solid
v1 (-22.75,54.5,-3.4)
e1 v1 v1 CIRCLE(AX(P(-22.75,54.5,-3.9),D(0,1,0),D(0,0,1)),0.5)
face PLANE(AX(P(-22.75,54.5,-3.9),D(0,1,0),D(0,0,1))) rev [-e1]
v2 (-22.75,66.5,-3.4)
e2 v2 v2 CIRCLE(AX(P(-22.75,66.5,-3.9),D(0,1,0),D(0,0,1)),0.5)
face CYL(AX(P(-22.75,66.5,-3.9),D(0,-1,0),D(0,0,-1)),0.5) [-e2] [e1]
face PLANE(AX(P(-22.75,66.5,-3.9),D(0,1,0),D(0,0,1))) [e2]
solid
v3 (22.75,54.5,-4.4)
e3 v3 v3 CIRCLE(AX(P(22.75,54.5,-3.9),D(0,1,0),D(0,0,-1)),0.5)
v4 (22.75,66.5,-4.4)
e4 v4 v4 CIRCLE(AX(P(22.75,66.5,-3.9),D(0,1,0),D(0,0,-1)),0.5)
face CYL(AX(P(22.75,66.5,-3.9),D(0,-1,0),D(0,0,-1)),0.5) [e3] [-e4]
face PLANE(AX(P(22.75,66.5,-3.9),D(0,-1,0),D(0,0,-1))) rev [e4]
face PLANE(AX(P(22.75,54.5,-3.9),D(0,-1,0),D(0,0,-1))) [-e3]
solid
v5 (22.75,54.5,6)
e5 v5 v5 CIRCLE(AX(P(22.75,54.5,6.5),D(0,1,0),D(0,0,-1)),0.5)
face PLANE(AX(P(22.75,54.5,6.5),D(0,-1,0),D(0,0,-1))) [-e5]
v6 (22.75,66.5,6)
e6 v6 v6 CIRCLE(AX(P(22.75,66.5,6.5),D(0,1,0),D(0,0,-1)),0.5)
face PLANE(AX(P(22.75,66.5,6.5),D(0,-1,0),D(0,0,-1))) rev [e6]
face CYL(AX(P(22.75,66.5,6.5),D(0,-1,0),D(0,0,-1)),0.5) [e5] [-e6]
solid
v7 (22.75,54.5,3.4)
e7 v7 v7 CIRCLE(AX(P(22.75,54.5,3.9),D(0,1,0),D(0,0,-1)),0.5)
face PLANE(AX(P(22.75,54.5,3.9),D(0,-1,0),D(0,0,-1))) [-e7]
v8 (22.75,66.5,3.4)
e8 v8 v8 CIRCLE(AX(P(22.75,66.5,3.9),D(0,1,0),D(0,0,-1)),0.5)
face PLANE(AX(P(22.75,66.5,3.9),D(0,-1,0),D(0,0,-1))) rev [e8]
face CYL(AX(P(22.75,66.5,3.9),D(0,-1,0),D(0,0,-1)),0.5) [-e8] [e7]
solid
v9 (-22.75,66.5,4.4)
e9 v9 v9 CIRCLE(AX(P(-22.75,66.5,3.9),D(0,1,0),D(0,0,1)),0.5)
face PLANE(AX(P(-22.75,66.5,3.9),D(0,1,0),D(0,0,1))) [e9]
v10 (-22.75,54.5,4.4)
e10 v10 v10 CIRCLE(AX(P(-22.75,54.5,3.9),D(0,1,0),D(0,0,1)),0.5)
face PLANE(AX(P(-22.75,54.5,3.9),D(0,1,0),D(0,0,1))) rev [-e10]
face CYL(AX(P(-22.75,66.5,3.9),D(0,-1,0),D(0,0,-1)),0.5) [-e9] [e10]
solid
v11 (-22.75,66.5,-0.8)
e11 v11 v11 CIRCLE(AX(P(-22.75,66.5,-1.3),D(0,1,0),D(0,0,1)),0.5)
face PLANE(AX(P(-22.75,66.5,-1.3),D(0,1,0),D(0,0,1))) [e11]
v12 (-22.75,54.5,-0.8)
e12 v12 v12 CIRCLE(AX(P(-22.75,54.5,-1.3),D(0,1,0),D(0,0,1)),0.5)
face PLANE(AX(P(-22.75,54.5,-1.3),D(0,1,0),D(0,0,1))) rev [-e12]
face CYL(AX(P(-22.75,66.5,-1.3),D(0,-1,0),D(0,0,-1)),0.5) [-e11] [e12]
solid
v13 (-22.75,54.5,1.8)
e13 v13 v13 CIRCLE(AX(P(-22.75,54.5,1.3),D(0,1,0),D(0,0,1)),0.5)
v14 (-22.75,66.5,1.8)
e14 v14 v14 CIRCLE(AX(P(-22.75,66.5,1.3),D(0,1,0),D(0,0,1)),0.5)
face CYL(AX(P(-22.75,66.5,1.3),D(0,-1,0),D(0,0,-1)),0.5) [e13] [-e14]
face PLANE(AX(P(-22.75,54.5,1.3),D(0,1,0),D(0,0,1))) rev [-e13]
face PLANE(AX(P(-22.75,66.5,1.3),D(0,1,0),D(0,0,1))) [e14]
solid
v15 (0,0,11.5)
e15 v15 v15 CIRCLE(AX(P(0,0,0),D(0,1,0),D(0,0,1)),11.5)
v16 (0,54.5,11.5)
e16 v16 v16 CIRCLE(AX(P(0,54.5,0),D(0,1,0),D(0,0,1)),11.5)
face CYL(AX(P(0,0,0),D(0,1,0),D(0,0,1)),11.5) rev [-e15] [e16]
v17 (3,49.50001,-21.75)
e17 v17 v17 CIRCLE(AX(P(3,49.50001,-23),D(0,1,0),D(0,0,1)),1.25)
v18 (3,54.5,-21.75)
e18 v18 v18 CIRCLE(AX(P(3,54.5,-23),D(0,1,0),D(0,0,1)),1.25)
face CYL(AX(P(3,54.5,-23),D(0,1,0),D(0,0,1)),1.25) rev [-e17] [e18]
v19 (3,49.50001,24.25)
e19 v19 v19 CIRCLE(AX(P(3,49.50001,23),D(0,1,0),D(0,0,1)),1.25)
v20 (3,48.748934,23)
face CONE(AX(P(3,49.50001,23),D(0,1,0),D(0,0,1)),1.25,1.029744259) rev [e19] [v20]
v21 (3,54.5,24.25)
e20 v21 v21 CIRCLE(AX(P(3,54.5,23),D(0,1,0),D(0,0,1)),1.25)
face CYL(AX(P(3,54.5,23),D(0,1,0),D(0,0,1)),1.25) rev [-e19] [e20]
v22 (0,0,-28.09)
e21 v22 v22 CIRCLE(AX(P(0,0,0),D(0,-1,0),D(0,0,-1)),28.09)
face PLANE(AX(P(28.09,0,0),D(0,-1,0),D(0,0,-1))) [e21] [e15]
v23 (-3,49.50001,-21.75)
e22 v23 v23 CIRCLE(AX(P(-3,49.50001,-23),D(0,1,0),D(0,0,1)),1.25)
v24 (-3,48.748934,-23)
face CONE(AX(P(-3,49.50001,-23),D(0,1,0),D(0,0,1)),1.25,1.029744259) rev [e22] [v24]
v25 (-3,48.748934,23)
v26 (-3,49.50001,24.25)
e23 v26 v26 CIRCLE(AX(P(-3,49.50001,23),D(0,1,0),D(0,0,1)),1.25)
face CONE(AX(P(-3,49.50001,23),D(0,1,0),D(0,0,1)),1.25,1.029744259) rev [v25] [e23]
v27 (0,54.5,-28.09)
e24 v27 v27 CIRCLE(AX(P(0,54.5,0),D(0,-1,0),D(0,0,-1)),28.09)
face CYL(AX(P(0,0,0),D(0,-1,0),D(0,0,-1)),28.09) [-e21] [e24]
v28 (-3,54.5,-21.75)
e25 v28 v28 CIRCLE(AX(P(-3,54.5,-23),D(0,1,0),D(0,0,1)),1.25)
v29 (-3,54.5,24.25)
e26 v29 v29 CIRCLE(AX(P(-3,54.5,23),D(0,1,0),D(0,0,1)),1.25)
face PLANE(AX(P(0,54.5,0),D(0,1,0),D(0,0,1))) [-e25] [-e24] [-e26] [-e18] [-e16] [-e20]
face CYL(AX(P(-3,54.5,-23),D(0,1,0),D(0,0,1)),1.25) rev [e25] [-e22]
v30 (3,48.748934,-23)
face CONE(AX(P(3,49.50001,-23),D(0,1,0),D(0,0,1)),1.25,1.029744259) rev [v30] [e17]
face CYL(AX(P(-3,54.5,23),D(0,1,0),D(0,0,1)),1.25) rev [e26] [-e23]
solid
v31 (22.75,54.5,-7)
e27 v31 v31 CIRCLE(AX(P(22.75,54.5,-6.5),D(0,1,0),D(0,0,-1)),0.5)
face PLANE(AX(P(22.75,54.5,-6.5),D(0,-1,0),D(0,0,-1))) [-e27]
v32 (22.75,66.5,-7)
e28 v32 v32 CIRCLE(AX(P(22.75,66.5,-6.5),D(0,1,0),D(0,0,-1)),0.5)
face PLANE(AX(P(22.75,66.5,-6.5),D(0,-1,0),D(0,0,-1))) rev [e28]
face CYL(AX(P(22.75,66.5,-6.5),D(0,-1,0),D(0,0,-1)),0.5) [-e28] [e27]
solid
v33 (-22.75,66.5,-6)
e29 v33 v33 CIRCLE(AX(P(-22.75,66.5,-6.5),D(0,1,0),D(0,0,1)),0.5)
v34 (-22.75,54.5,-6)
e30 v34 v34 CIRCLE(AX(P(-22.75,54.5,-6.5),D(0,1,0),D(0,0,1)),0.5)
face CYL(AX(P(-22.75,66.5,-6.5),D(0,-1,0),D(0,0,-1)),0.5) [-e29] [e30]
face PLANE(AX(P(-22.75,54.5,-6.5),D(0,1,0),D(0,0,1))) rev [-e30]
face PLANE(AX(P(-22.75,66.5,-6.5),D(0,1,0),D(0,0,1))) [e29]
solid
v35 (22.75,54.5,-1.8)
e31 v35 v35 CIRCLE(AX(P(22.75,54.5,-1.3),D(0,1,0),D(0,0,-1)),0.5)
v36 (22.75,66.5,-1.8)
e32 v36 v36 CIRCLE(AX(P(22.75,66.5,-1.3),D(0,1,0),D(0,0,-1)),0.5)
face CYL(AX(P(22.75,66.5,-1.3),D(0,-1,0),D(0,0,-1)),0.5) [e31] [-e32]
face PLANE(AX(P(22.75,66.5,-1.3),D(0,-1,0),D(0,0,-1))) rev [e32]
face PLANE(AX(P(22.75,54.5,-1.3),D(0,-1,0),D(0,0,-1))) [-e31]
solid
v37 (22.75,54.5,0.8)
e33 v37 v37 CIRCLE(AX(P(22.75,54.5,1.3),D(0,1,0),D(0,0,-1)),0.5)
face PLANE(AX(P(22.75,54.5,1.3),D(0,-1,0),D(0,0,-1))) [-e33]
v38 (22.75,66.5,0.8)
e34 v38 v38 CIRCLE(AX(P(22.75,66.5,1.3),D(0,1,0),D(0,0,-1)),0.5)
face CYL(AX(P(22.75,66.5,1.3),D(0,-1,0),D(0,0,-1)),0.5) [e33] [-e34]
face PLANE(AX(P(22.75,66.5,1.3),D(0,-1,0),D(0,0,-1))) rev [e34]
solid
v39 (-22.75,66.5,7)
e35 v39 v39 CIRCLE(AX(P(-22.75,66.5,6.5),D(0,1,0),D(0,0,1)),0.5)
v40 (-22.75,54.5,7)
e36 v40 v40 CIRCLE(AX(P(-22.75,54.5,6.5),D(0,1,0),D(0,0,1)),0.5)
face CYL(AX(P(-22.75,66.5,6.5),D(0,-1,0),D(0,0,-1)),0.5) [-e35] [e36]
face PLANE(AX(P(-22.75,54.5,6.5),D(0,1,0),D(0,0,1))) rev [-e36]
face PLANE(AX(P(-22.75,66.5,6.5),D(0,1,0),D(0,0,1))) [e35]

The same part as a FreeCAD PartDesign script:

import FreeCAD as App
import Part
import Sketcher

V = App.Vector


def add_polygon(sketch, points):
    """Adds a closed chain of lines whose ends are joined by coincident constraints."""
    first, n = sketch.GeometryCount, len(points)
    for a, b in zip(points, points[1:] + points[:1]):
        sketch.addGeometry(Part.LineSegment(App.Vector(*a, 0), App.Vector(*b, 0)), False)
    for i in range(n):
        sketch.addConstraint(Sketcher.Constraint("Coincident", first + i, 2, first + (i + 1) % n, 1))

doc = App.newDocument("Part")
params = doc.addObject("Spreadsheet::Sheet", "Params")
for row, (alias, value) in enumerate([
    ("sketch1_height", "54.5 mm"),
    ("sketch1_width", "28.09 mm"),
    ("revolution_angle", "360 deg"),
    ("sketch2_width", "54.5 mm"),
    ("groove_angle", "360 deg"),
    ("sketch3_diameter", "2.5 mm"),
    ("hole_diameter", "2.5 mm"),
    ("hole_depth", "4.99999 mm"),
    ("sketch4_diameter", "23 mm"),
    ("sketch5_diameter", "1 mm"),
    ("pad1_length", "12 mm"),
    ("sketch6_diameter", "1 mm"),
    ("pad2_length", "12 mm"),
    ("sketch7_diameter", "1 mm"),
    ("pad3_length", "12 mm"),
    ("sketch8_diameter", "1 mm"),
    ("pad4_length", "12 mm"),
    ("sketch9_diameter", "1 mm"),
    ("pad5_length", "12 mm"),
    ("sketch10_diameter", "1 mm"),
    ("pad6_length", "12 mm"),
    ("sketch11_diameter", "1 mm"),
    ("pad7_length", "12 mm"),
    ("sketch12_diameter", "1 mm"),
    ("pad8_length", "12 mm"),
    ("sketch13_diameter", "1 mm"),
    ("pad9_length", "12 mm"),
    ("sketch14_diameter", "1 mm"),
    ("pad10_length", "12 mm"),
    ("sketch15_diameter", "1 mm"),
    ("pad11_length", "12 mm"),
    ("sketch16_diameter", "1 mm"),
    ("pad12_length", "12 mm"),
], start=1):
    params.set(f"A{row}", alias)
    params.set(f"B{row}", "=" + value)
    params.setAlias(f"B{row}", alias)

body = doc.addObject("PartDesign::Body", "Body")

# Sketch on XY plane
sketch1 = body.newObject("Sketcher::SketchObject", "Sketch")
sketch1.AttachmentSupport = (doc.getObject("XY_Plane"), [""])
sketch1.MapMode = "FlatFace"
add_polygon(sketch1, [(0, 54), (0, 0), (28, 0), (28, 54)])  # lines 0-3
sketch1.addConstraint(Sketcher.Constraint("Vertical", 0))
sketch1.addConstraint(Sketcher.Constraint("Horizontal", 1))
sketch1.addConstraint(Sketcher.Constraint("Vertical", 2))
sketch1.addConstraint(Sketcher.Constraint("Horizontal", 3))
sketch1.addConstraint(Sketcher.Constraint("Coincident", 0, 2, -1, 1))
sketch1.addConstraint(Sketcher.Constraint("DistanceY", 0, 2, 0, 1, 54.5))
sketch1.addConstraint(Sketcher.Constraint("DistanceX", 1, 1, 1, 2, 28.09))
sketch1.setExpression("Constraints[9]", "Params.sketch1_height")
sketch1.setExpression("Constraints[10]", "Params.sketch1_width")
revolution = body.newObject("PartDesign::Revolution", "Revolution")
revolution.Profile = sketch1
revolution.ReferenceAxis = (sketch1, ["V_Axis"])
revolution.setExpression("Angle", "Params.revolution_angle")

# Sketch on YZ plane
sketch2 = body.newObject("Sketcher::SketchObject", "Sketch001")
sketch2.AttachmentSupport = (doc.getObject("YZ_Plane"), [""])
sketch2.MapMode = "FlatFace"
add_polygon(sketch2, [(0, 0), (54.5, 0), (54.5, 6.9), (44.5, 6.6), (44.5, 5.6), (0, 5.6)])  # lines 0-5
sketch2.addConstraint(Sketcher.Constraint("Horizontal", 0))
sketch2.addConstraint(Sketcher.Constraint("Vertical", 1))
sketch2.addConstraint(Sketcher.Constraint("Vertical", 3))
sketch2.addConstraint(Sketcher.Constraint("Horizontal", 4))
sketch2.addConstraint(Sketcher.Constraint("Vertical", 5))
sketch2.addConstraint(Sketcher.Constraint("Coincident", 5, 2, -1, 1))
sketch2.addConstraint(Sketcher.Constraint("DistanceX", 0, 1, 0, 2, 54.5))
sketch2.addConstraint(Sketcher.Constraint("DistanceY", 1, 1, 1, 2, 6.858))
sketch2.addConstraint(Sketcher.Constraint("DistanceX", 4, 2, 4, 1, 44.4797))
sketch2.addConstraint(Sketcher.Constraint("DistanceY", 5, 2, 5, 1, 5.5626))
sketch2.addConstraint(Sketcher.Constraint("DistanceY", 3, 2, 3, 1, 0.995379))
sketch2.setExpression("Constraints[12]", "Params.sketch2_width")
groove = body.newObject("PartDesign::Groove", "Groove")
groove.Profile = sketch2
groove.ReferenceAxis = (sketch2, ["H_Axis"])
groove.setExpression("Angle", "Params.groove_angle")

# Sketch on XZ plane
sketch3 = body.newObject("Sketcher::SketchObject", "Sketch002")
sketch3.AttachmentSupport = (doc.getObject("XZ_Plane"), [""])
sketch3.MapMode = "FlatFace"
sketch3.AttachmentOffset = App.Placement(V(0, 0, -54.5), App.Rotation())
sketch3.addGeometry(Part.Circle(V(-3, -23, 0), V(0, 0, 1), 1.2), False)
sketch3.addGeometry(Part.Circle(V(3, 23, 0), V(0, 0, 1), 1.2), False)
sketch3.addGeometry(Part.Circle(V(-3, 23, 0), V(0, 0, 1), 1.2), False)
sketch3.addGeometry(Part.Circle(V(3, -23, 0), V(0, 0, 1), 1.2), False)
sketch3.addConstraint(Sketcher.Constraint("Equal", 0, 1))
sketch3.addConstraint(Sketcher.Constraint("Equal", 1, 2))
sketch3.addConstraint(Sketcher.Constraint("Equal", 2, 3))
sketch3.addConstraint(Sketcher.Constraint("Symmetric", 0, 3, 1, 3, -1, 1))
sketch3.addConstraint(Sketcher.Constraint("Symmetric", 2, 3, 3, 3, -1, 1))
sketch3.addConstraint(Sketcher.Constraint("Symmetric", 1, 3, 2, 3, -2))
sketch3.addConstraint(Sketcher.Constraint("Diameter", 0, 2.5))
sketch3.addConstraint(Sketcher.Constraint("DistanceX", 0, 3, -1, 1, 3.0))
sketch3.addConstraint(Sketcher.Constraint("DistanceY", 0, 3, -1, 1, 23.0))
sketch3.setExpression("Constraints[6]", "Params.sketch3_diameter")
doc.recompute()
hole = body.newObject("PartDesign::Hole", "Hole")
hole.Profile = sketch3
hole.ThreadType = "None"
hole.setExpression("Diameter", "Params.hole_diameter")
hole.DepthType = "Dimension"
hole.setExpression("Depth", "Params.hole_depth")
hole.DrillPoint = "Angled"
hole.DrillPointAngle = 118
hole.Reversed = True

# Sketch on XZ plane
sketch4 = body.newObject("Sketcher::SketchObject", "Sketch003")
sketch4.AttachmentSupport = (doc.getObject("XZ_Plane"), [""])
sketch4.MapMode = "FlatFace"
sketch4.AttachmentOffset = App.Placement(V(0, 0, -54.5), App.Rotation())
sketch4.addGeometry(Part.Circle(V(0, 0, 0), V(0, 0, 1), 12), False)
sketch4.addConstraint(Sketcher.Constraint("Coincident", 0, 3, -1, 1))
sketch4.addConstraint(Sketcher.Constraint("Diameter", 0, 23.0))
sketch4.setExpression("Constraints[1]", "Params.sketch4_diameter")
pocket1 = body.newObject("PartDesign::Pocket", "Pocket")
pocket1.Profile = sketch4
pocket1.Type = "ThroughAll"
pocket1.Reversed = True
body2 = doc.addObject("PartDesign::Body", "Body001")

# Sketch on XZ plane
sketch5 = body2.newObject("Sketcher::SketchObject", "Sketch004")
sketch5.AttachmentSupport = (doc.getObject("XZ_Plane001"), [""])
sketch5.MapMode = "FlatFace"
sketch5.AttachmentOffset = App.Placement(V(0, 0, -54.5), App.Rotation())
sketch5.addGeometry(Part.Circle(V(-22.8, -6.5, 0), V(0, 0, 1), 0.5), False)
sketch5.addConstraint(Sketcher.Constraint("Diameter", 0, 1.0))
sketch5.addConstraint(Sketcher.Constraint("DistanceY", 0, 3, -1, 1, 6.5))
sketch5.addConstraint(Sketcher.Constraint("DistanceX", 0, 3, -1, 1, 22.75))
sketch5.setExpression("Constraints[0]", "Params.sketch5_diameter")
pad1 = body2.newObject("PartDesign::Pad", "Pad")
pad1.Profile = sketch5
pad1.setExpression("Length", "Params.pad1_length")
pad1.Reversed = True
body3 = doc.addObject("PartDesign::Body", "Body002")

# Sketch on XZ plane
sketch6 = body3.newObject("Sketcher::SketchObject", "Sketch005")
sketch6.AttachmentSupport = (doc.getObject("XZ_Plane002"), [""])
sketch6.MapMode = "FlatFace"
sketch6.AttachmentOffset = App.Placement(V(0, 0, -54.5), App.Rotation())
sketch6.addGeometry(Part.Circle(V(-22.8, -3.9, 0), V(0, 0, 1), 0.5), False)
sketch6.addConstraint(Sketcher.Constraint("Diameter", 0, 1.0))
sketch6.addConstraint(Sketcher.Constraint("DistanceY", 0, 3, -1, 1, 3.9))
sketch6.addConstraint(Sketcher.Constraint("DistanceX", 0, 3, -1, 1, 22.75))
sketch6.setExpression("Constraints[0]", "Params.sketch6_diameter")
pad2 = body3.newObject("PartDesign::Pad", "Pad001")
pad2.Profile = sketch6
pad2.setExpression("Length", "Params.pad2_length")
pad2.Reversed = True
body4 = doc.addObject("PartDesign::Body", "Body003")

# Sketch on XZ plane
sketch7 = body4.newObject("Sketcher::SketchObject", "Sketch006")
sketch7.AttachmentSupport = (doc.getObject("XZ_Plane003"), [""])
sketch7.MapMode = "FlatFace"
sketch7.AttachmentOffset = App.Placement(V(0, 0, -54.5), App.Rotation())
sketch7.addGeometry(Part.Circle(V(-22.8, -1.3, 0), V(0, 0, 1), 0.5), False)
sketch7.addConstraint(Sketcher.Constraint("Diameter", 0, 1.0))
sketch7.addConstraint(Sketcher.Constraint("DistanceY", 0, 3, -1, 1, 1.3))
sketch7.addConstraint(Sketcher.Constraint("DistanceX", 0, 3, -1, 1, 22.75))
sketch7.setExpression("Constraints[0]", "Params.sketch7_diameter")
pad3 = body4.newObject("PartDesign::Pad", "Pad002")
pad3.Profile = sketch7
pad3.setExpression("Length", "Params.pad3_length")
pad3.Reversed = True
body5 = doc.addObject("PartDesign::Body", "Body004")

# Sketch on XZ plane
sketch8 = body5.newObject("Sketcher::SketchObject", "Sketch007")
sketch8.AttachmentSupport = (doc.getObject("XZ_Plane004"), [""])
sketch8.MapMode = "FlatFace"
sketch8.AttachmentOffset = App.Placement(V(0, 0, -54.5), App.Rotation())
sketch8.addGeometry(Part.Circle(V(-22.8, 1.3, 0), V(0, 0, 1), 0.5), False)
sketch8.addConstraint(Sketcher.Constraint("Diameter", 0, 1.0))
sketch8.addConstraint(Sketcher.Constraint("DistanceY", -1, 1, 0, 3, 1.3))
sketch8.addConstraint(Sketcher.Constraint("DistanceX", 0, 3, -1, 1, 22.75))
sketch8.setExpression("Constraints[0]", "Params.sketch8_diameter")
pad4 = body5.newObject("PartDesign::Pad", "Pad003")
pad4.Profile = sketch8
pad4.setExpression("Length", "Params.pad4_length")
pad4.Reversed = True
body6 = doc.addObject("PartDesign::Body", "Body005")

# Sketch on XZ plane
sketch9 = body6.newObject("Sketcher::SketchObject", "Sketch008")
sketch9.AttachmentSupport = (doc.getObject("XZ_Plane005"), [""])
sketch9.MapMode = "FlatFace"
sketch9.AttachmentOffset = App.Placement(V(0, 0, -54.5), App.Rotation())
sketch9.addGeometry(Part.Circle(V(-22.8, 3.9, 0), V(0, 0, 1), 0.5), False)
sketch9.addConstraint(Sketcher.Constraint("Diameter", 0, 1.0))
sketch9.addConstraint(Sketcher.Constraint("DistanceY", -1, 1, 0, 3, 3.9))
sketch9.addConstraint(Sketcher.Constraint("DistanceX", 0, 3, -1, 1, 22.75))
sketch9.setExpression("Constraints[0]", "Params.sketch9_diameter")
pad5 = body6.newObject("PartDesign::Pad", "Pad004")
pad5.Profile = sketch9
pad5.setExpression("Length", "Params.pad5_length")
pad5.Reversed = True
body7 = doc.addObject("PartDesign::Body", "Body006")

# Sketch on XZ plane
sketch10 = body7.newObject("Sketcher::SketchObject", "Sketch009")
sketch10.AttachmentSupport = (doc.getObject("XZ_Plane006"), [""])
sketch10.MapMode = "FlatFace"
sketch10.AttachmentOffset = App.Placement(V(0, 0, -54.5), App.Rotation())
sketch10.addGeometry(Part.Circle(V(-22.8, 6.5, 0), V(0, 0, 1), 0.5), False)
sketch10.addConstraint(Sketcher.Constraint("Diameter", 0, 1.0))
sketch10.addConstraint(Sketcher.Constraint("DistanceY", -1, 1, 0, 3, 6.5))
sketch10.addConstraint(Sketcher.Constraint("DistanceX", 0, 3, -1, 1, 22.75))
sketch10.setExpression("Constraints[0]", "Params.sketch10_diameter")
pad6 = body7.newObject("PartDesign::Pad", "Pad005")
pad6.Profile = sketch10
pad6.setExpression("Length", "Params.pad6_length")
pad6.Reversed = True
body8 = doc.addObject("PartDesign::Body", "Body007")

# Sketch on XZ plane
sketch11 = body8.newObject("Sketcher::SketchObject", "Sketch010")
sketch11.AttachmentSupport = (doc.getObject("XZ_Plane007"), [""])
sketch11.MapMode = "FlatFace"
sketch11.AttachmentOffset = App.Placement(V(0, 0, -54.5), App.Rotation())
sketch11.addGeometry(Part.Circle(V(22.8, 6.5, 0), V(0, 0, 1), 0.5), False)
sketch11.addConstraint(Sketcher.Constraint("Diameter", 0, 1.0))
sketch11.addConstraint(Sketcher.Constraint("DistanceY", -1, 1, 0, 3, 6.5))
sketch11.addConstraint(Sketcher.Constraint("DistanceX", -1, 1, 0, 3, 22.75))
sketch11.setExpression("Constraints[0]", "Params.sketch11_diameter")
pad7 = body8.newObject("PartDesign::Pad", "Pad006")
pad7.Profile = sketch11
pad7.setExpression("Length", "Params.pad7_length")
pad7.Reversed = True
body9 = doc.addObject("PartDesign::Body", "Body008")

# Sketch on XZ plane
sketch12 = body9.newObject("Sketcher::SketchObject", "Sketch011")
sketch12.AttachmentSupport = (doc.getObject("XZ_Plane008"), [""])
sketch12.MapMode = "FlatFace"
sketch12.AttachmentOffset = App.Placement(V(0, 0, -54.5), App.Rotation())
sketch12.addGeometry(Part.Circle(V(22.8, 3.9, 0), V(0, 0, 1), 0.5), False)
sketch12.addConstraint(Sketcher.Constraint("Diameter", 0, 1.0))
sketch12.addConstraint(Sketcher.Constraint("DistanceY", -1, 1, 0, 3, 3.9))
sketch12.addConstraint(Sketcher.Constraint("DistanceX", -1, 1, 0, 3, 22.75))
sketch12.setExpression("Constraints[0]", "Params.sketch12_diameter")
pad8 = body9.newObject("PartDesign::Pad", "Pad007")
pad8.Profile = sketch12
pad8.setExpression("Length", "Params.pad8_length")
pad8.Reversed = True
body10 = doc.addObject("PartDesign::Body", "Body009")

# Sketch on XZ plane
sketch13 = body10.newObject("Sketcher::SketchObject", "Sketch012")
sketch13.AttachmentSupport = (doc.getObject("XZ_Plane009"), [""])
sketch13.MapMode = "FlatFace"
sketch13.AttachmentOffset = App.Placement(V(0, 0, -54.5), App.Rotation())
sketch13.addGeometry(Part.Circle(V(22.8, 1.3, 0), V(0, 0, 1), 0.5), False)
sketch13.addConstraint(Sketcher.Constraint("Diameter", 0, 1.0))
sketch13.addConstraint(Sketcher.Constraint("DistanceY", -1, 1, 0, 3, 1.3))
sketch13.addConstraint(Sketcher.Constraint("DistanceX", -1, 1, 0, 3, 22.75))
sketch13.setExpression("Constraints[0]", "Params.sketch13_diameter")
pad9 = body10.newObject("PartDesign::Pad", "Pad008")
pad9.Profile = sketch13
pad9.setExpression("Length", "Params.pad9_length")
pad9.Reversed = True
body11 = doc.addObject("PartDesign::Body", "Body010")

# Sketch on XZ plane
sketch14 = body11.newObject("Sketcher::SketchObject", "Sketch013")
sketch14.AttachmentSupport = (doc.getObject("XZ_Plane010"), [""])
sketch14.MapMode = "FlatFace"
sketch14.AttachmentOffset = App.Placement(V(0, 0, -54.5), App.Rotation())
sketch14.addGeometry(Part.Circle(V(22.8, -1.3, 0), V(0, 0, 1), 0.5), False)
sketch14.addConstraint(Sketcher.Constraint("Diameter", 0, 1.0))
sketch14.addConstraint(Sketcher.Constraint("DistanceY", 0, 3, -1, 1, 1.3))
sketch14.addConstraint(Sketcher.Constraint("DistanceX", -1, 1, 0, 3, 22.75))
sketch14.setExpression("Constraints[0]", "Params.sketch14_diameter")
pad10 = body11.newObject("PartDesign::Pad", "Pad009")
pad10.Profile = sketch14
pad10.setExpression("Length", "Params.pad10_length")
pad10.Reversed = True
body12 = doc.addObject("PartDesign::Body", "Body011")

# Sketch on XZ plane
sketch15 = body12.newObject("Sketcher::SketchObject", "Sketch014")
sketch15.AttachmentSupport = (doc.getObject("XZ_Plane011"), [""])
sketch15.MapMode = "FlatFace"
sketch15.AttachmentOffset = App.Placement(V(0, 0, -54.5), App.Rotation())
sketch15.addGeometry(Part.Circle(V(22.8, -3.9, 0), V(0, 0, 1), 0.5), False)
sketch15.addConstraint(Sketcher.Constraint("Diameter", 0, 1.0))
sketch15.addConstraint(Sketcher.Constraint("DistanceY", 0, 3, -1, 1, 3.9))
sketch15.addConstraint(Sketcher.Constraint("DistanceX", -1, 1, 0, 3, 22.75))
sketch15.setExpression("Constraints[0]", "Params.sketch15_diameter")
pad11 = body12.newObject("PartDesign::Pad", "Pad010")
pad11.Profile = sketch15
pad11.setExpression("Length", "Params.pad11_length")
pad11.Reversed = True
body13 = doc.addObject("PartDesign::Body", "Body012")

# Sketch on XZ plane
sketch16 = body13.newObject("Sketcher::SketchObject", "Sketch015")
sketch16.AttachmentSupport = (doc.getObject("XZ_Plane012"), [""])
sketch16.MapMode = "FlatFace"
sketch16.AttachmentOffset = App.Placement(V(0, 0, -54.5), App.Rotation())
sketch16.addGeometry(Part.Circle(V(22.8, -6.5, 0), V(0, 0, 1), 0.5), False)
sketch16.addConstraint(Sketcher.Constraint("Diameter", 0, 1.0))
sketch16.addConstraint(Sketcher.Constraint("DistanceY", 0, 3, -1, 1, 6.5))
sketch16.addConstraint(Sketcher.Constraint("DistanceX", -1, 1, 0, 3, 22.75))
sketch16.setExpression("Constraints[0]", "Params.sketch16_diameter")
pad12 = body13.newObject("PartDesign::Pad", "Pad011")
pad12.Profile = sketch16
pad12.setExpression("Length", "Params.pad12_length")
pad12.Reversed = True

doc.recompute()
